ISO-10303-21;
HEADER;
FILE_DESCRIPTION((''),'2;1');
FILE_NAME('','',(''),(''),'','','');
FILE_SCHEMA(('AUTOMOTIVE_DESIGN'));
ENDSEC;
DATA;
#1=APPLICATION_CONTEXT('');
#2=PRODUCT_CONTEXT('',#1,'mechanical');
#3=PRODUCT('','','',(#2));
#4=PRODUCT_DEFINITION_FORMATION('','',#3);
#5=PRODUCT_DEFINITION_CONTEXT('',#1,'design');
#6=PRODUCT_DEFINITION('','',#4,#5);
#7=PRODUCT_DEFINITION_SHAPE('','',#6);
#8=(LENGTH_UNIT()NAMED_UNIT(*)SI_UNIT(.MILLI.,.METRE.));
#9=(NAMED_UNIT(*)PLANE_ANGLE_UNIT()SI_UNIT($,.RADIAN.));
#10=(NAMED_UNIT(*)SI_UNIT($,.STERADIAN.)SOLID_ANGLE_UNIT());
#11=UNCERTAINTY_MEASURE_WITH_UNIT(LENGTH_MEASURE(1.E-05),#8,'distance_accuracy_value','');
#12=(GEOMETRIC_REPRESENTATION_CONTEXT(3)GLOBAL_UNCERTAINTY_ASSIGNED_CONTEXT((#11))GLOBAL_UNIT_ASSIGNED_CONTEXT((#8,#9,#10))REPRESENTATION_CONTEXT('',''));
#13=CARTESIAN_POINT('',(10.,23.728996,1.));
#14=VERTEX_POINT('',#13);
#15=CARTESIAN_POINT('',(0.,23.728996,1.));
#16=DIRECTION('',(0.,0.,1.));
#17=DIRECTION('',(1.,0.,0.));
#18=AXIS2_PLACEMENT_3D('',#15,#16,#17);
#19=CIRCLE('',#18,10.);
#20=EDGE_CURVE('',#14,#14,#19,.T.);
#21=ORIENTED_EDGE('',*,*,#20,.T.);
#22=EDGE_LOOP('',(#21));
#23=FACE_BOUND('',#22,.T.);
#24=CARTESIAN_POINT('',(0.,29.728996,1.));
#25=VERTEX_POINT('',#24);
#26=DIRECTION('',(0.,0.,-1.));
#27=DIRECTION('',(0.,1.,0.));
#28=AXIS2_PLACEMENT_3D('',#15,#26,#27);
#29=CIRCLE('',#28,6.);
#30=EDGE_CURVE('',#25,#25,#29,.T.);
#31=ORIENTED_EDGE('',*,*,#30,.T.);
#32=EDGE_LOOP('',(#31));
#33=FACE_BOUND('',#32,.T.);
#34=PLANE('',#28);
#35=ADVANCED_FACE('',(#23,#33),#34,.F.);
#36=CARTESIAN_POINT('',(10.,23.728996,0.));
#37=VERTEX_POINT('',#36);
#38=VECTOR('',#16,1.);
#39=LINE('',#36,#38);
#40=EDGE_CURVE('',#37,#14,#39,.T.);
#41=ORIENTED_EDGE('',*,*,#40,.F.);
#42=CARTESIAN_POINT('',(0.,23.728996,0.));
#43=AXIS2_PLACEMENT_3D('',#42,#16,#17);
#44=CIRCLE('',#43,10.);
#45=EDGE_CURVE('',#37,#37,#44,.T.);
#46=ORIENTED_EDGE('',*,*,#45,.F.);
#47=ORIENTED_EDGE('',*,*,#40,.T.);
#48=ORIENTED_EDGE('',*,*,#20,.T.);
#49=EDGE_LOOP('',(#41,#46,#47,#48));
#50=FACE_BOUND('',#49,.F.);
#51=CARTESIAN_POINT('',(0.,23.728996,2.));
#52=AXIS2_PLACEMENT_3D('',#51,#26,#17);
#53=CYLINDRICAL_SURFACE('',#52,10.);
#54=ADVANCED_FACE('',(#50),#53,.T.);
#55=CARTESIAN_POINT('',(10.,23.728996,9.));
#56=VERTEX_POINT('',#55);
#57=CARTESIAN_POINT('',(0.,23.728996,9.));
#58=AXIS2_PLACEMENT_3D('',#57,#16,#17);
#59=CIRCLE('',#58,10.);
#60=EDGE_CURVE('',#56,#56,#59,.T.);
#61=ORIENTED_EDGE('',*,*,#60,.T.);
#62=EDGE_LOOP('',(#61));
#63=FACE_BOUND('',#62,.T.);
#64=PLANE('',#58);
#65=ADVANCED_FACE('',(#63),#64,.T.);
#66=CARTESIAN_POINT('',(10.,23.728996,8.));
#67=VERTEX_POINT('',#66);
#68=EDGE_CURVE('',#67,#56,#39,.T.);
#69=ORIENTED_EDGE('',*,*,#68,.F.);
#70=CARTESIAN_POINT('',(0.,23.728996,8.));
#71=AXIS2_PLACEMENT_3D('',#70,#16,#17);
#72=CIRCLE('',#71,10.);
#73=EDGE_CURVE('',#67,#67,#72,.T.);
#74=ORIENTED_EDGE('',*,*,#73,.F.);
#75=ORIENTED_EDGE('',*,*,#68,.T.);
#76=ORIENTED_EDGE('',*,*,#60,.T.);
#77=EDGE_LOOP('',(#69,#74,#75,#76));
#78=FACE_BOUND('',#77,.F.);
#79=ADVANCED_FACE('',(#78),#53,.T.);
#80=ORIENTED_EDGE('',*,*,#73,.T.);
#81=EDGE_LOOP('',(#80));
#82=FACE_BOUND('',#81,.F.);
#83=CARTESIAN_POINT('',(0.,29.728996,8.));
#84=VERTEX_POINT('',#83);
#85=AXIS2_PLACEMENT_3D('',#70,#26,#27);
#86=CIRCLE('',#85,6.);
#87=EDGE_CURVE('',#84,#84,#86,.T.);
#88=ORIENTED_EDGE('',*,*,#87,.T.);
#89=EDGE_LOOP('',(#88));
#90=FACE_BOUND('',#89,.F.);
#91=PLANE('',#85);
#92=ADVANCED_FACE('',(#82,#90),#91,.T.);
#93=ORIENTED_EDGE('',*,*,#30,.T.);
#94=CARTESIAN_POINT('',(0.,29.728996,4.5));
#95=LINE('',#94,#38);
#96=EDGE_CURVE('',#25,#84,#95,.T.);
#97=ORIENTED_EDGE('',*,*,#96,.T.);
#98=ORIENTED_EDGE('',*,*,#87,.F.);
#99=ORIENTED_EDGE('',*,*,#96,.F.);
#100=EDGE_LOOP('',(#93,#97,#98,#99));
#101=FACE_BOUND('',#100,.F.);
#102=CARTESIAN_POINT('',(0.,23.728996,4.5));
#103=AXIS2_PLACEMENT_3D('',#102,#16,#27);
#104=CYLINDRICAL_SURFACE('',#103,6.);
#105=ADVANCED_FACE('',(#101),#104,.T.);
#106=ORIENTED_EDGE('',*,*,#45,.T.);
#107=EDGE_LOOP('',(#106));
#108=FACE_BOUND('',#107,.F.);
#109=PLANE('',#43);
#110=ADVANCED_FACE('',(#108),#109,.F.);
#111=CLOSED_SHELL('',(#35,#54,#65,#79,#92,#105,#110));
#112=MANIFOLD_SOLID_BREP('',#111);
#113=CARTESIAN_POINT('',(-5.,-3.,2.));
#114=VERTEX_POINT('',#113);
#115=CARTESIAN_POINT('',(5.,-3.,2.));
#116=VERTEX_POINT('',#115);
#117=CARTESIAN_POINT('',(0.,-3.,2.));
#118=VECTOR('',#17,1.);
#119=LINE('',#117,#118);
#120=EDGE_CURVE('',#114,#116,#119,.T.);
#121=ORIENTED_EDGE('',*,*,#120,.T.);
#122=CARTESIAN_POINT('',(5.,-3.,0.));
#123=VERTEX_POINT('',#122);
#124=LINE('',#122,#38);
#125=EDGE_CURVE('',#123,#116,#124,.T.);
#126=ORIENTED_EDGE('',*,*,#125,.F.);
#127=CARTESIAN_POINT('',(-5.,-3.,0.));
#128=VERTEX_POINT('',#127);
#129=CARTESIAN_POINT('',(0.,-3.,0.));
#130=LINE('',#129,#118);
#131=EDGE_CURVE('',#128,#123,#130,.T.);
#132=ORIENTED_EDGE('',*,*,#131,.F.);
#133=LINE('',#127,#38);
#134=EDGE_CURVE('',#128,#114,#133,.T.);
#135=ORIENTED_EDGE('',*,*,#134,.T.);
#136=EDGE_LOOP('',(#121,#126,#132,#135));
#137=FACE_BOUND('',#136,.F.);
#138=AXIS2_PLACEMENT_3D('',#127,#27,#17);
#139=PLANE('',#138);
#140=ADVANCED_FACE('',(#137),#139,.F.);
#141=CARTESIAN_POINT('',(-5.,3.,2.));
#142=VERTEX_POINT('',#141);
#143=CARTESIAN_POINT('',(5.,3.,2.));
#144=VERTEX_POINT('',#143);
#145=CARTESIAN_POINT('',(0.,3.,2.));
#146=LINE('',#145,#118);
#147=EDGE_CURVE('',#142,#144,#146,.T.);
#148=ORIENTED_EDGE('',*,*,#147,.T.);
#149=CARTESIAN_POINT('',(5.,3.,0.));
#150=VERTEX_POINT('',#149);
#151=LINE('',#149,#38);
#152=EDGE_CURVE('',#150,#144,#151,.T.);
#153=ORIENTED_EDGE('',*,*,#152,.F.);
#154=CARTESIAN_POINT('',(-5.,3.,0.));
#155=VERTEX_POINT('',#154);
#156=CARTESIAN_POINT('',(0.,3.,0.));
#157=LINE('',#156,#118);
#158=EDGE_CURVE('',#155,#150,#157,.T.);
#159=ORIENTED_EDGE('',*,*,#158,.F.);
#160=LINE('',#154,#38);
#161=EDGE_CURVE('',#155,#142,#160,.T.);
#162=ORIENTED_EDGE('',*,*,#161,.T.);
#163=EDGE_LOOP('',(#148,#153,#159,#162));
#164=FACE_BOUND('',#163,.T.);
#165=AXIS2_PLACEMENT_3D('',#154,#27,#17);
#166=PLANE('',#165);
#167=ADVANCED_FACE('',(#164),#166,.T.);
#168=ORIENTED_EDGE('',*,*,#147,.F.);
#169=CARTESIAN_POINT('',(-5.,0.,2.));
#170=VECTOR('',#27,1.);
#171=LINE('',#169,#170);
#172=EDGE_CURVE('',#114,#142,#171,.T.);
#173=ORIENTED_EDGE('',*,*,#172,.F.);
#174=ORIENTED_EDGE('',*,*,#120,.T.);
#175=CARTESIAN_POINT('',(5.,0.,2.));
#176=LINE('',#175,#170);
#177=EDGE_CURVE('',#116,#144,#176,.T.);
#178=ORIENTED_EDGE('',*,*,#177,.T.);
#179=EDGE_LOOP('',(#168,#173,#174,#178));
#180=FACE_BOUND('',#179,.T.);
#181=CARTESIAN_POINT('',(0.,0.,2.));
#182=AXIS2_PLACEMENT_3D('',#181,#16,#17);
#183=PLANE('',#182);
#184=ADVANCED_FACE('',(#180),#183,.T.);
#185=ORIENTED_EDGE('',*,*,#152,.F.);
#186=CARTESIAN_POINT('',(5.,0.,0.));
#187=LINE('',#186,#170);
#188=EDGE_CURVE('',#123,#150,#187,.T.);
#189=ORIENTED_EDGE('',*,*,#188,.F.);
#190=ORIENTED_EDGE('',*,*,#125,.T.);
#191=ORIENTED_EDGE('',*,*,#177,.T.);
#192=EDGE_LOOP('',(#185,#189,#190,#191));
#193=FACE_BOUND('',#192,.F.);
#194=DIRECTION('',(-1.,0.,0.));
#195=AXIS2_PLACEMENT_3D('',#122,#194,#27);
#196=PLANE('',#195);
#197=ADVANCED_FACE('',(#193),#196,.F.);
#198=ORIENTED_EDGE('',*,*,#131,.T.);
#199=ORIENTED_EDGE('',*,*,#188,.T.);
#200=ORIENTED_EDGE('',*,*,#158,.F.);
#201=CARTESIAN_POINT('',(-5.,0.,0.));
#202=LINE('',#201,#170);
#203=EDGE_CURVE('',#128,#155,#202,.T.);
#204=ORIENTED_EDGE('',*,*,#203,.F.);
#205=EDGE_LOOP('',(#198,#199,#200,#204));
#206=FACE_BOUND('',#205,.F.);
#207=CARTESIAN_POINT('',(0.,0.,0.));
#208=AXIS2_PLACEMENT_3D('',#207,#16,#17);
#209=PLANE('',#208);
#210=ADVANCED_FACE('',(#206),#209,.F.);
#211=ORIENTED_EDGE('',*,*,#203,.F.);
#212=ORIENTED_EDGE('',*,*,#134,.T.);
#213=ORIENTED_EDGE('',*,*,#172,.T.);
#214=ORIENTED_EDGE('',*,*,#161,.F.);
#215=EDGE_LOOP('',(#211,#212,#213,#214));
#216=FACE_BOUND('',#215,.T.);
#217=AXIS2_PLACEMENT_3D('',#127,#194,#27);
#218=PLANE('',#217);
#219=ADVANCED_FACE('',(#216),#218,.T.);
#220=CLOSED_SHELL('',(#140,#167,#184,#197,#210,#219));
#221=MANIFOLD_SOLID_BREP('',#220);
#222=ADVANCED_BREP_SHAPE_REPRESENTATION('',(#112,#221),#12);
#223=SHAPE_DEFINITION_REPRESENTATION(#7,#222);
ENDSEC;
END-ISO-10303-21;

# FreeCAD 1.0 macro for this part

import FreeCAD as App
import Part
import Sketcher
from FreeCAD import Vector


def add_polygon(sketch, points):
    """Adds a closed chain of lines whose ends are joined by coincident constraints."""
    first, n = sketch.GeometryCount, len(points)
    for a, b in zip(points, points[1:] + points[:1]):
        sketch.addGeometry(Part.LineSegment(App.Vector(*a, 0), App.Vector(*b, 0)), False)
    for i in range(n):
        sketch.addConstraint(Sketcher.Constraint("Coincident", first + i, 2, first + (i + 1) % n, 1))

doc = App.newDocument("Part")
body = doc.addObject("PartDesign::Body", "Body")
body.AllowCompound = True

# Sketch on XY plane
sketch1 = doc.addObject("Sketcher::SketchObject", "Sketch")
body.addObject(sketch1)
sketch1.AttachmentSupport = (doc.XY_Plane, [""])
sketch1.MapMode = "FlatFace"
add_polygon(sketch1, [(-5, 3), (-5, -3), (5, -3), (5, 3)])  # lines 0-3
sketch1.addGeometry(Part.Circle(Vector(0, 23.728996, 0), Vector(0, 0, 1), 10), False)  # 4
sketch1.addConstraint([
    Sketcher.Constraint("Vertical", 0),
    Sketcher.Constraint("Horizontal", 1),
    Sketcher.Constraint("Vertical", 2),
    Sketcher.Constraint("Horizontal", 3),
    Sketcher.Constraint("Symmetric", 0, 2, 2, 2, -1, 1),
    Sketcher.Constraint("PointOnObject", 4, 3, -2),
    Sketcher.Constraint("Diameter", 4, 20.0),
    Sketcher.Constraint("DistanceX", 1, 1, 1, 2, 10.0),
    Sketcher.Constraint("DistanceY", 0, 2, 0, 1, 6.0),
    Sketcher.Constraint("DistanceY", -1, 1, 4, 3, 23.728996),
])
pad1 = doc.addObject("PartDesign::Pad", "Pad")
body.addObject(pad1)
pad1.Profile = sketch1
pad1.Length = 2

# Sketch on XY plane
sketch2 = doc.addObject("Sketcher::SketchObject", "Sketch001")
body.addObject(sketch2)
sketch2.AttachmentSupport = (doc.XY_Plane, [""])
sketch2.MapMode = "FlatFace"
sketch2.AttachmentOffset = App.Placement(Vector(0, 0, 2), App.Rotation())
sketch2.addGeometry(Part.Circle(Vector(0, 23.728996, 0), Vector(0, 0, 1), 10), False)
sketch2.addConstraint([
    Sketcher.Constraint("PointOnObject", 0, 3, -2),
    Sketcher.Constraint("Diameter", 0, 20.0),
    Sketcher.Constraint("DistanceY", -1, 1, 0, 3, 23.728996),
])
pad2 = doc.addObject("PartDesign::Pad", "Pad001")
body.addObject(pad2)
pad2.Profile = sketch2
pad2.Length = 7

# Sketch on YZ plane
sketch3 = doc.addObject("Sketcher::SketchObject", "Sketch002")
body.addObject(sketch3)
sketch3.AttachmentSupport = (doc.YZ_Plane, [""])
sketch3.MapMode = "FlatFace"
add_polygon(sketch3, [(29.728996, 8), (29.728996, 1), (33.728996, 1), (33.728996, 8)])  # lines 0-3
sketch3.addGeometry(Part.LineSegment(Vector(23.728996, 8, 0), Vector(23.728996, 1, 0)), True)  # axis
sketch3.addConstraint([
    Sketcher.Constraint("Vertical", 0),
    Sketcher.Constraint("Horizontal", 1),
    Sketcher.Constraint("Vertical", 2),
    Sketcher.Constraint("Horizontal", 3),
    Sketcher.Constraint("Vertical", 4),
    Sketcher.Constraint("Horizontal", 3, 2, 4, 1),
    Sketcher.Constraint("Horizontal", 1, 2, 4, 2),
    Sketcher.Constraint("DistanceX", 1, 1, 1, 2, 4.0),
    Sketcher.Constraint("DistanceY", 0, 2, 0, 1, 7.0),
    Sketcher.Constraint("DistanceY", -1, 1, 0, 2, 1.0),
    Sketcher.Constraint("DistanceX", 4, 1, 3, 2, 6.0),
    Sketcher.Constraint("DistanceX", -1, 1, 0, 2, 29.728996),
])
groove = doc.addObject("PartDesign::Groove", "Groove")
body.addObject(groove)
groove.Profile = sketch3
groove.ReferenceAxis = (sketch3, ["Axis0"])
groove.Angle = 360

doc.recompute()
